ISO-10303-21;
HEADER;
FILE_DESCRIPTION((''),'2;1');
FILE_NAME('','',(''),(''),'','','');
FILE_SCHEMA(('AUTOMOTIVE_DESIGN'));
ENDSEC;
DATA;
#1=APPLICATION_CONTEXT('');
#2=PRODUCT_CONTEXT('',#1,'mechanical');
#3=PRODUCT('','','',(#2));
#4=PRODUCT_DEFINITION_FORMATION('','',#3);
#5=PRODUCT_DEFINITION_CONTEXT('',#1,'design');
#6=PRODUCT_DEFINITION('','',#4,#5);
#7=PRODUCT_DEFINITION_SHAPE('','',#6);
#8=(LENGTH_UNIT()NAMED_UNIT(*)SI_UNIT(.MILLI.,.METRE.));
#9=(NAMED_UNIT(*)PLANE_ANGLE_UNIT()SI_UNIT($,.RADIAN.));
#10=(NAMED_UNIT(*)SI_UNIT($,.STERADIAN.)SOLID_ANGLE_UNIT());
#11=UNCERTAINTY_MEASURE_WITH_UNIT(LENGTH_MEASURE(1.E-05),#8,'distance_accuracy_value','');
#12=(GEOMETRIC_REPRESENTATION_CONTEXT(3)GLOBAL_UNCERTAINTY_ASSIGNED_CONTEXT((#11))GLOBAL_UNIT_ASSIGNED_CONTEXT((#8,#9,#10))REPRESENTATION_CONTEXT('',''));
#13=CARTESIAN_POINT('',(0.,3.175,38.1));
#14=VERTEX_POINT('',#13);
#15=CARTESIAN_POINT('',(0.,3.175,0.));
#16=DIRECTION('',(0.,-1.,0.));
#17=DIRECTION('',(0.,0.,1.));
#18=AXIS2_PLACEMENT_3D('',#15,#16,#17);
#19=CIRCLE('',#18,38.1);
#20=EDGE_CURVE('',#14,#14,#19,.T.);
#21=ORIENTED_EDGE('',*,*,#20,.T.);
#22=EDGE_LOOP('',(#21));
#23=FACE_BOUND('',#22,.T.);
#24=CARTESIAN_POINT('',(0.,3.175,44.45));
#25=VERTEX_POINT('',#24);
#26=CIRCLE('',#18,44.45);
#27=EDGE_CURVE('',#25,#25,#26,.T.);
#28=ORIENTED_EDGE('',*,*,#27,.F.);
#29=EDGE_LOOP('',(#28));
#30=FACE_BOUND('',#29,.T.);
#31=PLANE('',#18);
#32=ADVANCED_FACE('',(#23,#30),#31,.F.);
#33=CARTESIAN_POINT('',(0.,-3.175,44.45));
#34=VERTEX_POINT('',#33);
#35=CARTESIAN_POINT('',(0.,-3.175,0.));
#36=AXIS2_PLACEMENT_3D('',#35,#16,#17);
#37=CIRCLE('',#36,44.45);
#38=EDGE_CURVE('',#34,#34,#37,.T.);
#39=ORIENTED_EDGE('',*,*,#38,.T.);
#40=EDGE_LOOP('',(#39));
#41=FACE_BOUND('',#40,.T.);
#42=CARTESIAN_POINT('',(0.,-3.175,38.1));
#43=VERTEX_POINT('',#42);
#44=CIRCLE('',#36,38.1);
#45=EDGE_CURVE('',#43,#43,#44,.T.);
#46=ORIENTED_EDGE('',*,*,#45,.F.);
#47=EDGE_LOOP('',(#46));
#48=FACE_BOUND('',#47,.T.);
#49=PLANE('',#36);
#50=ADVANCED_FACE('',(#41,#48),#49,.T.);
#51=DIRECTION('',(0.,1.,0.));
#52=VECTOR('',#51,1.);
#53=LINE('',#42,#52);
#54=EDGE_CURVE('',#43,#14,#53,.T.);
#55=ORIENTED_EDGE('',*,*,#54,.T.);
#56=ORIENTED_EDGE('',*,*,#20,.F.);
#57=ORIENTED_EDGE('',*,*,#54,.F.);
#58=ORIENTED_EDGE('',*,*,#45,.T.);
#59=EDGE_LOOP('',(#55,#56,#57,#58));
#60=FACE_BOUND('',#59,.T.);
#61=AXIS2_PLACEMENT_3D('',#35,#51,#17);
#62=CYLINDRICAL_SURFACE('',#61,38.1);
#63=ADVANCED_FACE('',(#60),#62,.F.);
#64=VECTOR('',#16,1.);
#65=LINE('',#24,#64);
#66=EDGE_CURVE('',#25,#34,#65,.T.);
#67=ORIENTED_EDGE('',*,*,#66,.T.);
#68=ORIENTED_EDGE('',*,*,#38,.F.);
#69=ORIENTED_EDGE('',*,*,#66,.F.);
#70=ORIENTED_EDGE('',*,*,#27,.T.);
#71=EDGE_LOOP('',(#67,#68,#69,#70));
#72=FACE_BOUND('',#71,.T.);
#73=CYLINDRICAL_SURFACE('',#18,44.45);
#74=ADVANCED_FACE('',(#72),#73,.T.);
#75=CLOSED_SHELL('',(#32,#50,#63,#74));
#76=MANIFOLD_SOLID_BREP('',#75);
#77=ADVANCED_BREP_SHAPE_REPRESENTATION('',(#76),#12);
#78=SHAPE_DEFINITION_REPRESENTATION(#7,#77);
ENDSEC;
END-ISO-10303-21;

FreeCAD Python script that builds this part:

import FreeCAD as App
import Part
import Sketcher

V = App.Vector
Q = App.Units.Quantity

doc = App.newDocument("Part")
body = doc.addObject("PartDesign::Body", "Body")

# Sketch on YZ plane
sketch1 = body.newObject("Sketcher::SketchObject", "Sketch")
sketch1.AttachmentSupport = (doc.getObject("YZ_Plane"), [""])
sketch1.MapMode = "FlatFace"
sketch1.addGeometry([
    Part.LineSegment(V(-3, 44, 0), V(-3, 38, 0)),
    Part.LineSegment(V(-3, 38, 0), V(3, 38, 0)),
    Part.LineSegment(V(3, 38, 0), V(3, 44, 0)),
    Part.LineSegment(V(3, 44, 0), V(-3, 44, 0)),
], False)
sketch1.addConstraint([
    Sketcher.Constraint("Coincident", 0, 2, 1, 1),
    Sketcher.Constraint("Coincident", 1, 2, 2, 1),
    Sketcher.Constraint("Coincident", 2, 2, 3, 1),
    Sketcher.Constraint("Coincident", 3, 2, 0, 1),
    Sketcher.Constraint("Vertical", 0),
    Sketcher.Constraint("Horizontal", 1),
    Sketcher.Constraint("Vertical", 2),
    Sketcher.Constraint("Horizontal", 3),
    Sketcher.Constraint("Equal", 3, 0),
    Sketcher.Constraint("DistanceX", 1, 1, 1, 2, Q("0.25 in")),
    Sketcher.Constraint("DistanceY", -1, 1, 0, 2, Q("1.5 in")),
    Sketcher.Constraint("DistanceX", 0, 2, -1, 1, Q("0.125 in")),
])
revolution = body.newObject("PartDesign::Revolution", "Revolution")
revolution.Profile = sketch1
revolution.ReferenceAxis = (sketch1, ["H_Axis"])
revolution.Angle = 360

doc.recompute()
